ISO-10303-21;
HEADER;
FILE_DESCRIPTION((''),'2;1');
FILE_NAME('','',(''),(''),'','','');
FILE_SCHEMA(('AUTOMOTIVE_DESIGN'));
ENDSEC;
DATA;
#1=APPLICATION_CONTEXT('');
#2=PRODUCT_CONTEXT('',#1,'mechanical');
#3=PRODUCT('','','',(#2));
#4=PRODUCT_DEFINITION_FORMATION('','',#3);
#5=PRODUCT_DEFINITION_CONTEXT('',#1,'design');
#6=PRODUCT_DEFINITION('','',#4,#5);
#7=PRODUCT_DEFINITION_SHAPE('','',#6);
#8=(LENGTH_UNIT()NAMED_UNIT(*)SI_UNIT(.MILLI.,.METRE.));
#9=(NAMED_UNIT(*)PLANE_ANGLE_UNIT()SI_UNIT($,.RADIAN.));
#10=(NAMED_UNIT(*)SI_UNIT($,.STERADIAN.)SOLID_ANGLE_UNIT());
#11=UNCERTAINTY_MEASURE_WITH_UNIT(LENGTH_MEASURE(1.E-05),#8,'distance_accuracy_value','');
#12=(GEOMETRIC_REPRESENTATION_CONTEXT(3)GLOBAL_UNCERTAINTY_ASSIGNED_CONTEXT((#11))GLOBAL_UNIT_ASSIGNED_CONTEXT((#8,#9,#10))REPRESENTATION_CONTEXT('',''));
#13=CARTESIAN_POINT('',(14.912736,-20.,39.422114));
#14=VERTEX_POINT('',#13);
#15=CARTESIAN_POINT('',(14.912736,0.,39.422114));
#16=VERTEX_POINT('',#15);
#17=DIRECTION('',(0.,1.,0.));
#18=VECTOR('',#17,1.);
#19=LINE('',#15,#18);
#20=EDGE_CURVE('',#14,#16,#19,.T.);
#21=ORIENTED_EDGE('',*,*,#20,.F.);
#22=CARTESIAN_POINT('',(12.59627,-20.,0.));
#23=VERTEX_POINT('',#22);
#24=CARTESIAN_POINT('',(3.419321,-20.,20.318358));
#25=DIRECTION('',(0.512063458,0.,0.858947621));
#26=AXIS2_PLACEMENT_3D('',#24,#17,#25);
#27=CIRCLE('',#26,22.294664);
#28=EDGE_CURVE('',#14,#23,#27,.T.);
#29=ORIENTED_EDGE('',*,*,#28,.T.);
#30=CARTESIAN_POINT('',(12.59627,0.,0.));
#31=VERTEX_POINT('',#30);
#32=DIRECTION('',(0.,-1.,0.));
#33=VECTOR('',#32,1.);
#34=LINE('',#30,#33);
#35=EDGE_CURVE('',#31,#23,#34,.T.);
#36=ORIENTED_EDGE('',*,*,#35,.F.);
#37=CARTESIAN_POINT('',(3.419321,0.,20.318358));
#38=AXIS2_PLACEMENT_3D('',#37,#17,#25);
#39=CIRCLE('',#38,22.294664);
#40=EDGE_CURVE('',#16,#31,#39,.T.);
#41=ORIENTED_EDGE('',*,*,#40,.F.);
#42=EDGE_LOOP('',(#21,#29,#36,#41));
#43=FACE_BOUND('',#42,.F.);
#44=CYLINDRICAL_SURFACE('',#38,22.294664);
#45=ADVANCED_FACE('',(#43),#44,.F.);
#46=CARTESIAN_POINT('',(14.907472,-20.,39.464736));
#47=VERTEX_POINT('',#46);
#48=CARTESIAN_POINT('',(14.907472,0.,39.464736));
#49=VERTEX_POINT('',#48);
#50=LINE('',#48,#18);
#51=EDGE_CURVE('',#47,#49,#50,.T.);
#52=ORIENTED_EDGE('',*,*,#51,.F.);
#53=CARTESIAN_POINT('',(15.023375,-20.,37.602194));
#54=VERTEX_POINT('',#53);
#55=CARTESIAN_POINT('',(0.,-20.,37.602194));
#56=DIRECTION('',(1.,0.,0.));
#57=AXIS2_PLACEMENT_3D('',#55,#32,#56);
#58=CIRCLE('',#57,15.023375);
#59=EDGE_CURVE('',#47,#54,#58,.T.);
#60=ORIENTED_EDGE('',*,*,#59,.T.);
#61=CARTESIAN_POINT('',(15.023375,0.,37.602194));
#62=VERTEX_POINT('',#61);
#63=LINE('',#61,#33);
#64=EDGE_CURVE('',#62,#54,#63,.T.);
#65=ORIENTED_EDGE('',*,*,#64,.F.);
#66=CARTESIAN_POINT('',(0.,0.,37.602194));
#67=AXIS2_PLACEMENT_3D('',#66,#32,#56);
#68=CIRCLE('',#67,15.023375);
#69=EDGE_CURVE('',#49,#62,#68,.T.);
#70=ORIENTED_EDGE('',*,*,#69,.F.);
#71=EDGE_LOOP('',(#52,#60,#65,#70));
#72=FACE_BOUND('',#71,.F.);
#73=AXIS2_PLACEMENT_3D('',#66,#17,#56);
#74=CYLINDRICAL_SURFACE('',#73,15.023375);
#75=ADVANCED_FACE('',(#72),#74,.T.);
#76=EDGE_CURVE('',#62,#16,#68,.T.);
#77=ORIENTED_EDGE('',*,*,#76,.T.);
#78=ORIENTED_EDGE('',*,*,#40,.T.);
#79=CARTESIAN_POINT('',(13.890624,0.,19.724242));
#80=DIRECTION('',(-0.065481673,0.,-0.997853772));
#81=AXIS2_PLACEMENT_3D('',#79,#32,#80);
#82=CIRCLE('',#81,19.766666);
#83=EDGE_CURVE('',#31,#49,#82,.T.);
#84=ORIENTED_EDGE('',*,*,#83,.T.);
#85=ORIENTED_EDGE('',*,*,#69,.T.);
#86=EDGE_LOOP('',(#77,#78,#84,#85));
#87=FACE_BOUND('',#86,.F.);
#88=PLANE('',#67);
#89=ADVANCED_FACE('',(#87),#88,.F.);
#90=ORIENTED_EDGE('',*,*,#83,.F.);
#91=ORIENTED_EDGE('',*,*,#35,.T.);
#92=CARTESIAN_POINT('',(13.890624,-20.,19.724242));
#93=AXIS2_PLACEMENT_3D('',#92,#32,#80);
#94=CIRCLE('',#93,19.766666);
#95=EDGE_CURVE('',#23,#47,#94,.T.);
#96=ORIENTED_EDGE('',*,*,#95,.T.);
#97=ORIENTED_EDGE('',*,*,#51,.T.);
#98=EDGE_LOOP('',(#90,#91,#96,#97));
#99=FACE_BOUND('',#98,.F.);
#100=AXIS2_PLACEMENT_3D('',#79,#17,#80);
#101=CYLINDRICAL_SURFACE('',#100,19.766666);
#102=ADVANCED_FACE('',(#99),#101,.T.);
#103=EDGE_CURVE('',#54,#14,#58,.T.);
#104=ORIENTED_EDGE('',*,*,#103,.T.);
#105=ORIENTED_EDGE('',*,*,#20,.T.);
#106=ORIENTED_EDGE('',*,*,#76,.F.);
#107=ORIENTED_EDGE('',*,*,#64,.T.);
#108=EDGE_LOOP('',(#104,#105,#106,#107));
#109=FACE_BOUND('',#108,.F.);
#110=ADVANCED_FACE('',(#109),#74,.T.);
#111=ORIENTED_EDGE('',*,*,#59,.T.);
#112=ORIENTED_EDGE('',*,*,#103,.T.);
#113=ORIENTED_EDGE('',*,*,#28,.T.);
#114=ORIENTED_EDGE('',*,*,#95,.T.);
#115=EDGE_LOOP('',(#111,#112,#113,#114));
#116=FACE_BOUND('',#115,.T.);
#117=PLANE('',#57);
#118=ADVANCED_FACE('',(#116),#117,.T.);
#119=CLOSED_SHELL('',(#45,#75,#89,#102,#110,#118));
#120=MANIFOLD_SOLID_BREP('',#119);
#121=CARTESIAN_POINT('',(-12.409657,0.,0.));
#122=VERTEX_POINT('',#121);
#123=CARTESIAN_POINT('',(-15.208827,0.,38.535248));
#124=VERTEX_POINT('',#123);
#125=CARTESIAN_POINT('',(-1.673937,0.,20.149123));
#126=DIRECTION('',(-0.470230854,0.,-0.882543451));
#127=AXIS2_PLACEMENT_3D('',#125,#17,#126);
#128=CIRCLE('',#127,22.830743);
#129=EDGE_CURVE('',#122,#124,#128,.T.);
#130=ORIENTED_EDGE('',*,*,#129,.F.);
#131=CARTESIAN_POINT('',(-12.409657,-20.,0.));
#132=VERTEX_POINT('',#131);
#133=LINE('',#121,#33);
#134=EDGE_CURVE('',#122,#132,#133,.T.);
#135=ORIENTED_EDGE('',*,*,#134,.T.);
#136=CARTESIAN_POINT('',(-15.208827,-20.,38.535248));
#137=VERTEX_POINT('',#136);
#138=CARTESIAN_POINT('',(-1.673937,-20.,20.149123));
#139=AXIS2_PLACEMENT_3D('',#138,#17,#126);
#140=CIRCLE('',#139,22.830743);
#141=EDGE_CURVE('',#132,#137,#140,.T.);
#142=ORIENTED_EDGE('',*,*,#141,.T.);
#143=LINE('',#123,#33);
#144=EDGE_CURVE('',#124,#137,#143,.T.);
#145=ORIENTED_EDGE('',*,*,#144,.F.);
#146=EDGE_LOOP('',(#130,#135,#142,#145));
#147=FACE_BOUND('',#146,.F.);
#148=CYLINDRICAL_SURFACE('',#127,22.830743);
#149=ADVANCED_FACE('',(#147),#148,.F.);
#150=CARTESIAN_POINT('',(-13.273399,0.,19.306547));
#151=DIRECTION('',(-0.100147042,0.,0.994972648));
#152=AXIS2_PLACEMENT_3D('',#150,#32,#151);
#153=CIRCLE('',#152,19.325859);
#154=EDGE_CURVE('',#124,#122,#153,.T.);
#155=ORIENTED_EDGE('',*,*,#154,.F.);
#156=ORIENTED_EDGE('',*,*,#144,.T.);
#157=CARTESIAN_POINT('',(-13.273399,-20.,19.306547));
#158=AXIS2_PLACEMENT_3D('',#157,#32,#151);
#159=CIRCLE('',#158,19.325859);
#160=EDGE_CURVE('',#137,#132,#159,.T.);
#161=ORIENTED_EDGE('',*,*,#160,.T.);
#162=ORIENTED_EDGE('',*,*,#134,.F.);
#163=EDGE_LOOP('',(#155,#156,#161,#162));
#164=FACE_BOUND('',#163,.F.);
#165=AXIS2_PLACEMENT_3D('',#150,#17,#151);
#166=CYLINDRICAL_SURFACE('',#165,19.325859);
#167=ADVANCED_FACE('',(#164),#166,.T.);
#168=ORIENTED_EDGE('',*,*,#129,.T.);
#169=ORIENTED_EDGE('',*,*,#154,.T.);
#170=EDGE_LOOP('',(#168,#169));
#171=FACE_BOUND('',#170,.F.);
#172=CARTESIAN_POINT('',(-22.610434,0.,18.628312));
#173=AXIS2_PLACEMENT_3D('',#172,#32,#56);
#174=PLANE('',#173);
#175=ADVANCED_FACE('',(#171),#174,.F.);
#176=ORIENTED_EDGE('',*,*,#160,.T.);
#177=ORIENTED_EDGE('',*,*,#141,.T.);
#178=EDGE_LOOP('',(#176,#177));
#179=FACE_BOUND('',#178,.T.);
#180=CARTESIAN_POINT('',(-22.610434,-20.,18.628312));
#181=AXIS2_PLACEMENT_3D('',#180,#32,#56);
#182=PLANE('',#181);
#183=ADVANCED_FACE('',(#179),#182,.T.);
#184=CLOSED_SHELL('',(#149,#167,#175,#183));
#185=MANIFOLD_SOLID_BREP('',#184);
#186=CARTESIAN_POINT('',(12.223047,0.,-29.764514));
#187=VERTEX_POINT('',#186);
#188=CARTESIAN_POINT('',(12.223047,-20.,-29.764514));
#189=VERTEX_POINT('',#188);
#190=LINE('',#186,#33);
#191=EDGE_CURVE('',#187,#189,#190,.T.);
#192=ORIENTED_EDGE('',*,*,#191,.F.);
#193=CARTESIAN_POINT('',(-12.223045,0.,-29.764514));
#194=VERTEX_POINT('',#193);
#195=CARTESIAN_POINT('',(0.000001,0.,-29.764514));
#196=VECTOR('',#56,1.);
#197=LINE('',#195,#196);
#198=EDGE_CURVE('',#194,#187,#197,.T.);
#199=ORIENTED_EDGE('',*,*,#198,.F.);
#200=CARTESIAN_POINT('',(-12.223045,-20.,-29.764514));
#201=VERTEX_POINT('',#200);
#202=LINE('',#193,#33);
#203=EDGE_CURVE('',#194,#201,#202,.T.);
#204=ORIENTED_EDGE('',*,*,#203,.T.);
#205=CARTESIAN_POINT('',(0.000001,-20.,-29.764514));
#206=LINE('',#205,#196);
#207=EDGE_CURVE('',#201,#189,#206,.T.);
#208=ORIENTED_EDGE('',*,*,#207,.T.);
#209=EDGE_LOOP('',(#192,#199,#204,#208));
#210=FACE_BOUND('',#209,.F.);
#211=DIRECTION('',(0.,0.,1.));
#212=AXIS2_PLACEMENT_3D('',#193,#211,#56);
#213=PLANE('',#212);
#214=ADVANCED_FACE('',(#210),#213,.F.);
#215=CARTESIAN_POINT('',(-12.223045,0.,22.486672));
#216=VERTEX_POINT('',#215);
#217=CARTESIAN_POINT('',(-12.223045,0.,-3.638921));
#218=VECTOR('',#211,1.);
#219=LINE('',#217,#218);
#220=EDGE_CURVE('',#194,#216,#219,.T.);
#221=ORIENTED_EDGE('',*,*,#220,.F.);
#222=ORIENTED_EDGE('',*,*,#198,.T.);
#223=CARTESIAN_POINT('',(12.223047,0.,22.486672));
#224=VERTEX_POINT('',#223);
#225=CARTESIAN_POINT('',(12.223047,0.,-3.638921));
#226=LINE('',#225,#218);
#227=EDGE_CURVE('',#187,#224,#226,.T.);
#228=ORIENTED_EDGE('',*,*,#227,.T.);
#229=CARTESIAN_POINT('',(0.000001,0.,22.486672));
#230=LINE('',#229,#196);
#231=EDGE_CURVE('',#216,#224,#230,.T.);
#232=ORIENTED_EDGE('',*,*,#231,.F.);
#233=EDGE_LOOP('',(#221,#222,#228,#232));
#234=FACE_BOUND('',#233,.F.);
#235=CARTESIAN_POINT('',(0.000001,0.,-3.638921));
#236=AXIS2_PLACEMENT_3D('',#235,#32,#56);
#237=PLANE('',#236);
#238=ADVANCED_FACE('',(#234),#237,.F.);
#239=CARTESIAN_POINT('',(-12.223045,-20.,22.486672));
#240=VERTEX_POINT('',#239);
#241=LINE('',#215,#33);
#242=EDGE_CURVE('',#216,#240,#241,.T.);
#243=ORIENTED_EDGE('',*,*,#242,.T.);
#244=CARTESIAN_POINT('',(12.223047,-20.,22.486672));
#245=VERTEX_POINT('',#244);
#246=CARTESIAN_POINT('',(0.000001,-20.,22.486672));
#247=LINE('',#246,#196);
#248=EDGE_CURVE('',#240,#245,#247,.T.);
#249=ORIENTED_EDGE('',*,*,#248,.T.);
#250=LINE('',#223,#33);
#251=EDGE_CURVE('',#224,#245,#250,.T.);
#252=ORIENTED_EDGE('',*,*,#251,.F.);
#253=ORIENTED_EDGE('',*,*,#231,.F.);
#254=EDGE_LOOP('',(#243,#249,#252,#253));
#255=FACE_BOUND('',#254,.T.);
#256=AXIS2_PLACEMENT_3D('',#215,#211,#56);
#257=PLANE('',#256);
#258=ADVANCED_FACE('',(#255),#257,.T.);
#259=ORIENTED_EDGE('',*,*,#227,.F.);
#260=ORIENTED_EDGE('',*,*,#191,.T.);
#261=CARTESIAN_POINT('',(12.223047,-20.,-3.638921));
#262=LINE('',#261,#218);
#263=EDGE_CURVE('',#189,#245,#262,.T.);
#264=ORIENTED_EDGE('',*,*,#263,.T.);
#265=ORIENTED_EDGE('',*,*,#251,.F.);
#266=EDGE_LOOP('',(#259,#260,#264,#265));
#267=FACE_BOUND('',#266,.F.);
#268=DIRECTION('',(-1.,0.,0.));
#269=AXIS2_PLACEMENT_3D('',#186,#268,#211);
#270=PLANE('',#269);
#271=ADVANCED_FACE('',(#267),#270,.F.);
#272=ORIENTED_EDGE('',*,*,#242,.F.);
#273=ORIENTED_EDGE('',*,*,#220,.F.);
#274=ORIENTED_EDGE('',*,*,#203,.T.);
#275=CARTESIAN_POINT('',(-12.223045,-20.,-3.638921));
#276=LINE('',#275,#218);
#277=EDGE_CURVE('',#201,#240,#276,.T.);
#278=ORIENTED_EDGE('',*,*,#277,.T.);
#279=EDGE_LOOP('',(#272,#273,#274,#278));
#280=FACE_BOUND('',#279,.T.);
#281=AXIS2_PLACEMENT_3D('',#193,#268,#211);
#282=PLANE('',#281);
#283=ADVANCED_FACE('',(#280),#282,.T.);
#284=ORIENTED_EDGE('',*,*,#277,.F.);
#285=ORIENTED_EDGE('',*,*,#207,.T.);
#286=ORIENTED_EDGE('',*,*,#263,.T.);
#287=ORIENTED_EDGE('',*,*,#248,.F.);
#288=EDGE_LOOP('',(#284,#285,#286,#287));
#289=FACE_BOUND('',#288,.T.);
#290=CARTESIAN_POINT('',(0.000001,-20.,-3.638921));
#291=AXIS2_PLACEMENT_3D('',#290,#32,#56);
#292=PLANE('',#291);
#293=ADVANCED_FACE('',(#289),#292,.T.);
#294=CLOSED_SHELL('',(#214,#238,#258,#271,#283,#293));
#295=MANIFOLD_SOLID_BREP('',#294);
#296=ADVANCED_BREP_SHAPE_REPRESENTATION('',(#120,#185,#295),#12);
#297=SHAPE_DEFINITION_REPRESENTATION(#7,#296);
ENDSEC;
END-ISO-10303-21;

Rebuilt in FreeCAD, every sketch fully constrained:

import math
import FreeCAD as App
import Part
import Sketcher

V = App.Vector

doc = App.newDocument("Part")
body = doc.addObject("PartDesign::Body", "Body")

# Sketch on XZ plane
sketch1 = doc.addObject("Sketcher::SketchObject", "Sketch")
body.addObject(sketch1)
sketch1.AttachmentSupport = (doc.XZ_Plane, [""])
sketch1.MapMode = "FlatFace"
sketch1.addGeometry(Part.Circle(V(0, 37.602194, 0), V(0, 0, 1), 15.023375), False)
sketch1.addConstraint([
    Sketcher.Constraint("PointOnObject", 0, 3, -2),
    Sketcher.Constraint("Diameter", 0, 30.04675),
    Sketcher.Constraint("DistanceY", -1, 1, 0, 3, 37.602194),
])
pad1 = doc.addObject("PartDesign::Pad", "Pad")
body.addObject(pad1)
pad1.Profile = sketch1
pad1.Length = 20

# Sketch on XZ plane
sketch2 = doc.addObject("Sketcher::SketchObject", "Sketch001")
body.addObject(sketch2)
sketch2.AttachmentSupport = (doc.XZ_Plane, [""])
sketch2.MapMode = "FlatFace"
sketch2.addGeometry([
    Part.ArcOfCircle(Part.Circle(V(3.419321, 20.318358, 0), V(0, 0, 1), 22.294664), math.radians(-65.693305), math.radians(59.198626)),
    Part.ArcOfCircle(Part.Circle(V(13.890624, 19.724242, 0), V(0, 0, 1), 19.766666), math.radians(-93.75451), math.radians(87.259832)),
], False)
sketch2.addConstraint([
    Sketcher.Constraint("Coincident", 0, 1, 1, 1),
    Sketcher.Constraint("Coincident", 1, 2, 0, 2),
    Sketcher.Constraint("PointOnObject", 0, 1, -1),
    Sketcher.Constraint("Radius", 0, 22.294664),
    Sketcher.Constraint("Radius", 1, 19.766666),
    Sketcher.Constraint("DistanceX", -1, 1, 0, 3, 3.419321),
    Sketcher.Constraint("DistanceX", -1, 1, 0, 1, 12.59627),
    Sketcher.Constraint("DistanceX", 1, 3, 1, 2, 0.94498),
])
pad2 = doc.addObject("PartDesign::Pad", "Pad001")
body.addObject(pad2)
pad2.Profile = sketch2
pad2.Length = 20
body2 = doc.addObject("PartDesign::Body", "Body001")

# Sketch on XZ plane
sketch3 = doc.addObject("Sketcher::SketchObject", "Sketch002")
body2.addObject(sketch3)
sketch3.AttachmentSupport = (doc.getObject("XZ_Plane001"), [""])
sketch3.MapMode = "FlatFace"
sketch3.addGeometry([
    Part.LineSegment(V(-12.223045, 22.486672, 0), V(-12.223045, -29.764514, 0)),
    Part.LineSegment(V(-12.223045, -29.764514, 0), V(12.223047, -29.764514, 0)),
    Part.LineSegment(V(12.223047, -29.764514, 0), V(12.223047, 22.486672, 0)),
    Part.LineSegment(V(12.223047, 22.486672, 0), V(-12.223045, 22.486672, 0)),
], False)
sketch3.addConstraint([
    Sketcher.Constraint("Coincident", 0, 2, 1, 1),
    Sketcher.Constraint("Coincident", 1, 2, 2, 1),
    Sketcher.Constraint("Coincident", 2, 2, 3, 1),
    Sketcher.Constraint("Coincident", 3, 2, 0, 1),
    Sketcher.Constraint("Vertical", 0),
    Sketcher.Constraint("Horizontal", 1),
    Sketcher.Constraint("Vertical", 2),
    Sketcher.Constraint("Horizontal", 3),
    Sketcher.Constraint("DistanceX", 1, 1, 1, 2, 24.446092),
    Sketcher.Constraint("DistanceY", 0, 2, 0, 1, 52.251186),
    Sketcher.Constraint("DistanceY", -1, 1, 2, 2, 22.486672),
    Sketcher.Constraint("DistanceX", 0, 2, -1, 1, 12.223045),
])
pad3 = doc.addObject("PartDesign::Pad", "Pad002")
body2.addObject(pad3)
pad3.Profile = sketch3
pad3.Length = 20
body3 = doc.addObject("PartDesign::Body", "Body002")

# Sketch on XZ plane
sketch4 = doc.addObject("Sketcher::SketchObject", "Sketch003")
body3.addObject(sketch4)
sketch4.AttachmentSupport = (doc.getObject("XZ_Plane002"), [""])
sketch4.MapMode = "FlatFace"
sketch4.addGeometry([
    Part.ArcOfCircle(Part.Circle(V(-1.673937, 20.149123, 0), V(0, 0, 1), 22.830743), math.radians(126.358529), math.radians(241.950717)),
    Part.ArcOfCircle(Part.Circle(V(-13.273399, 19.306547, 0), V(0, 0, 1), 19.325859), math.radians(95.747638), math.radians(272.561609)),
], False)
sketch4.addConstraint([
    Sketcher.Constraint("Coincident", 0, 1, 1, 1),
    Sketcher.Constraint("Coincident", 1, 2, 0, 2),
    Sketcher.Constraint("PointOnObject", 1, 2, -1),
    Sketcher.Constraint("Radius", 1, 19.325859),
    Sketcher.Constraint("Radius", 0, 22.830743),
    Sketcher.Constraint("DistanceX", 1, 3, -1, 1, 13.273399),
    Sketcher.Constraint("DistanceY", 1, 3, 0, 1, 19.228701),
    Sketcher.Constraint("DistanceY", -1, 1, 0, 1, 38.535248),
])
pad4 = doc.addObject("PartDesign::Pad", "Pad003")
body3.addObject(pad4)
pad4.Profile = sketch4
pad4.Length = 20

doc.recompute()
